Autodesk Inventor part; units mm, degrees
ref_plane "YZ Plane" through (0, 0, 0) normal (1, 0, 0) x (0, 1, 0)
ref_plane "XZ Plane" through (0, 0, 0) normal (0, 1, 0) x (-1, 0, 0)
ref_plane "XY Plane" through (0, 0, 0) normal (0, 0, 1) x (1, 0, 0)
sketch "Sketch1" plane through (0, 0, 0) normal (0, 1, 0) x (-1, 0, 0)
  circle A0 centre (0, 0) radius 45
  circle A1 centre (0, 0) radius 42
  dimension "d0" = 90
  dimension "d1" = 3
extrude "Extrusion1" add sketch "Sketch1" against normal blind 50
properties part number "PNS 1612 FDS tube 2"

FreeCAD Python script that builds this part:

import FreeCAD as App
import Part
import Sketcher

V = App.Vector
Q = App.Units.Quantity

doc = App.newDocument("Part")
body = doc.addObject("PartDesign::Body", "Body")

# Sketch on XZ plane
sketch1 = body.newObject("Sketcher::SketchObject", "Sketch")
sketch1.AttachmentSupport = (doc.getObject("XZ_Plane"), [""])
sketch1.MapMode = "FlatFace"
sketch1.addGeometry(Part.Circle(V(0, 0, 0), V(0, 0, 1), 45), False)
sketch1.addGeometry(Part.Circle(V(0, 0, 0), V(0, 0, 1), 42), False)
sketch1.addConstraint(Sketcher.Constraint("Coincident", 0, 3, -1, 1))
sketch1.addConstraint(Sketcher.Constraint("Coincident", 1, 3, -1, 1))
sketch1.addConstraint(Sketcher.Constraint("Diameter", 0, Q("90 mm")))
sketch1.addConstraint(Sketcher.Constraint("Diameter", 1, Q("84 mm")))
pad1 = body.newObject("PartDesign::Pad", "Pad")
pad1.Profile = sketch1
pad1.Length = 50

doc.recompute()
